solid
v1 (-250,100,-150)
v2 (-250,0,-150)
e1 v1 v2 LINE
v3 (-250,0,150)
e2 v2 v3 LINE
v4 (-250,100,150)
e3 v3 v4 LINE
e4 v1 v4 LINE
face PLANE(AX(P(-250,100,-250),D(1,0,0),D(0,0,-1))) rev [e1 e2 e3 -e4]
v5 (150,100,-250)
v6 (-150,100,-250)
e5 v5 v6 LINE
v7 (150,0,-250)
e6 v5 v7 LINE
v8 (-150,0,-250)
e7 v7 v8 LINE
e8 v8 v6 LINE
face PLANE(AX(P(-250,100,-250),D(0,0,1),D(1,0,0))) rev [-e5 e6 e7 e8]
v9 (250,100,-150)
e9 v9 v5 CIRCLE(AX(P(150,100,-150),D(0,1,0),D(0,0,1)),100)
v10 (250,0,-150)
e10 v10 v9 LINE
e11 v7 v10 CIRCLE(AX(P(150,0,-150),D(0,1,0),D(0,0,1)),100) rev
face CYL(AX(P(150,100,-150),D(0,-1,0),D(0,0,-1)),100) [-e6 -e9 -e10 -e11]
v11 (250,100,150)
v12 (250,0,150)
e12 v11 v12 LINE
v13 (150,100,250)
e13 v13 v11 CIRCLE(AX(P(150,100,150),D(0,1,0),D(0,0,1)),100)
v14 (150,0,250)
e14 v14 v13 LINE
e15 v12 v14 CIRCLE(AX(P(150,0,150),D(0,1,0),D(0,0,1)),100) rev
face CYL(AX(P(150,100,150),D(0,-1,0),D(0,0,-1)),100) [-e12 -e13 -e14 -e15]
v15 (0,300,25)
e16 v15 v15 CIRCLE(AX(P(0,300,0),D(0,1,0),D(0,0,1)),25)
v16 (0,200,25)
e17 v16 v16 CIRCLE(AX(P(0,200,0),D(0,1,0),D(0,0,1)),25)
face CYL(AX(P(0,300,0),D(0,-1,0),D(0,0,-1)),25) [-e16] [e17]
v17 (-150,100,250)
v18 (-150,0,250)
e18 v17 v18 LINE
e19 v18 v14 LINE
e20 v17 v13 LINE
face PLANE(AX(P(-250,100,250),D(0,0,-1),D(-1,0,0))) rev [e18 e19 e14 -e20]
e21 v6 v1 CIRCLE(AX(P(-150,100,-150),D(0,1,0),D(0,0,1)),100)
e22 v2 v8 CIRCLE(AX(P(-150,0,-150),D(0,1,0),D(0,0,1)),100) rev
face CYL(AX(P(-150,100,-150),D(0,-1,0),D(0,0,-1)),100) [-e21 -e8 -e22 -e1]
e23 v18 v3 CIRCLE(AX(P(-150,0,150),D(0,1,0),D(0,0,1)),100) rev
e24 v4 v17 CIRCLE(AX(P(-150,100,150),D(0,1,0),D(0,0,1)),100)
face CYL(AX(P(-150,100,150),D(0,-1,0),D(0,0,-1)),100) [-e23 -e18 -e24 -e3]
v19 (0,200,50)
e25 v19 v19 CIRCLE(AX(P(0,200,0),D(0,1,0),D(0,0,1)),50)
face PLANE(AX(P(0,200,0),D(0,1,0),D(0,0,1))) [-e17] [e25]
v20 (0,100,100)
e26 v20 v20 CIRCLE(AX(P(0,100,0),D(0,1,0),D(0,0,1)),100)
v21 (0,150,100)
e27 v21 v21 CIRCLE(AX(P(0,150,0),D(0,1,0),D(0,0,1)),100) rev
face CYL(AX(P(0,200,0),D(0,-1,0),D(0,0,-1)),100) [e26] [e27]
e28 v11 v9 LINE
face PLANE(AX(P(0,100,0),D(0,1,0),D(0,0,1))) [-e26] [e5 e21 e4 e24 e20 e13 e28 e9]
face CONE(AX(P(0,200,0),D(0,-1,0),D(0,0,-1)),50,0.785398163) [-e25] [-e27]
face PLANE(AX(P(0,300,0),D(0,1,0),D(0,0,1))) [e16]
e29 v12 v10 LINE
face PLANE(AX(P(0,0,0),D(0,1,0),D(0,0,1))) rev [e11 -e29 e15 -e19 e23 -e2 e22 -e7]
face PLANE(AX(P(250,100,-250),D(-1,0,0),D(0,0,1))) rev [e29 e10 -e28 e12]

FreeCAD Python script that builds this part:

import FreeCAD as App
import Part
import Sketcher

V = App.Vector


def edges_at(feature, points):
    """Names of the edges that pass closest to the given points."""
    edges = feature.Shape.Edges
    near = lambda p: min(range(len(edges)), key=lambda i: edges[i].distToShape(Part.Vertex(*p))[0])
    return sorted({f"Edge{near(p) + 1}" for p in points})

doc = App.newDocument("Part")
body = doc.addObject("PartDesign::Body", "Body")

sketch1 = body.newObject("Sketcher::SketchObject", "Sketch")
sketch1.AttachmentSupport = (doc.getObject("XZ_Plane"), [""])
sketch1.MapMode = "FlatFace"
sketch1.addGeometry(Part.LineSegment(V(-250, -250, 0), V(-250, 250, 0)), False)
sketch1.addGeometry(Part.LineSegment(V(-250, 250, 0), V(250, 250, 0)), False)
sketch1.addGeometry(Part.LineSegment(V(250, 250, 0), V(250, -250, 0)), False)
sketch1.addGeometry(Part.LineSegment(V(250, -250, 0), V(-250, -250, 0)), False)
sketch1.addConstraint(Sketcher.Constraint("Coincident", 0, 2, 1, 1))
sketch1.addConstraint(Sketcher.Constraint("Coincident", 1, 2, 2, 1))
sketch1.addConstraint(Sketcher.Constraint("Coincident", 2, 2, 3, 1))
sketch1.addConstraint(Sketcher.Constraint("Coincident", 3, 2, 0, 1))
sketch1.addConstraint(Sketcher.Constraint("Vertical", 0))
sketch1.addConstraint(Sketcher.Constraint("Horizontal", 1))
sketch1.addConstraint(Sketcher.Constraint("Vertical", 2))
sketch1.addConstraint(Sketcher.Constraint("Horizontal", 3))
sketch1.addConstraint(Sketcher.Constraint("Symmetric", 0, 2, 2, 2, -1, 1))
sketch1.addConstraint(Sketcher.Constraint("Equal", 3, 0))
sketch1.addConstraint(Sketcher.Constraint("DistanceX", 1, 1, 1, 2, 500.0))
pad1 = body.newObject("PartDesign::Pad", "Pad")
pad1.Profile = sketch1
pad1.Length = 100
pad1.Reversed = True

sketch2 = body.newObject("Sketcher::SketchObject", "Sketch001")
sketch2.AttachmentSupport = (doc.getObject("XZ_Plane"), [""])
sketch2.MapMode = "FlatFace"
sketch2.AttachmentOffset = App.Placement(V(0, 0, -100), App.Rotation())
sketch2.addGeometry(Part.Circle(V(0, 0, 0), V(0, 0, 1), 100), False)
sketch2.addConstraint(Sketcher.Constraint("Coincident", 0, 3, -1, 1))
sketch2.addConstraint(Sketcher.Constraint("Diameter", 0, 200.0))
pad2 = body.newObject("PartDesign::Pad", "Pad001")
pad2.Profile = sketch2
pad2.Length = 100
pad2.Reversed = True

sketch3 = body.newObject("Sketcher::SketchObject", "Sketch002")
sketch3.AttachmentSupport = (doc.getObject("XZ_Plane"), [""])
sketch3.MapMode = "FlatFace"
sketch3.AttachmentOffset = App.Placement(V(0, 0, -200), App.Rotation())
sketch3.addGeometry(Part.Circle(V(0, 0, 0), V(0, 0, 1), 25), False)
sketch3.addConstraint(Sketcher.Constraint("Coincident", 0, 3, -1, 1))
sketch3.addConstraint(Sketcher.Constraint("Diameter", 0, 50.0))
pad3 = body.newObject("PartDesign::Pad", "Pad002")
pad3.Profile = sketch3
pad3.Length = 100
pad3.Reversed = True
doc.recompute()

chamfer = body.newObject("PartDesign::Chamfer", "Chamfer")
chamfer.Base = (pad3, edges_at(pad3, [(-100, 200, 0)]))
chamfer.Size = 50
doc.recompute()

fillet = body.newObject("PartDesign::Fillet", "Fillet")
fillet.Base = (chamfer, edges_at(chamfer, [
    (250, 50, 250),
    (-250, 50, 250),
    (-250, 50, -250),
    (250, 50, -250),
]))
fillet.Radius = 100

doc.recompute()
